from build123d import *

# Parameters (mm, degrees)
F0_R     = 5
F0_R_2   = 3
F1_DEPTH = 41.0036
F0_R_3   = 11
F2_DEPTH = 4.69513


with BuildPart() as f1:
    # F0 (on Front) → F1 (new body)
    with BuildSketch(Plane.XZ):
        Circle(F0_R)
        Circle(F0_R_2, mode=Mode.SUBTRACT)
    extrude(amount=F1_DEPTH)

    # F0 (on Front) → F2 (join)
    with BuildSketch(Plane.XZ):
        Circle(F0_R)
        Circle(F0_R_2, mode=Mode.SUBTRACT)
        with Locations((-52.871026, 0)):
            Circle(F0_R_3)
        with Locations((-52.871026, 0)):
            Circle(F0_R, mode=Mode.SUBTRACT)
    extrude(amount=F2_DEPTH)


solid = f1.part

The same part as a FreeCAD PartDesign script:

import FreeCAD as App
import Part
import Sketcher
from FreeCAD import Vector
Q = App.Units.Quantity

doc = App.newDocument("Part")
params = doc.addObject("Spreadsheet::Sheet", "Params")
for row, (alias, value) in enumerate([
    ("sketch1_diameter", "10 mm"),
    ("sketch1_diameter2", "6 mm"),
    ("pad1_length", "41.0036 mm"),
    ("sketch2_diameter", "10 mm"),
    ("sketch2_diameter2", "6 mm"),
    ("sketch2_diameter3", "22 mm"),
    ("pad2_length", "4.69513 mm"),
], start=1):
    params.set(f"A{row}", alias)
    params.set(f"B{row}", "=" + value)
    params.setAlias(f"B{row}", alias)

body = doc.addObject("PartDesign::Body", "Body")
body.AllowCompound = True

sketch1 = doc.addObject("Sketcher::SketchObject", "Sketch")
body.addObject(sketch1)
sketch1.AttachmentSupport = (doc.XZ_Plane, [""])
sketch1.MapMode = "FlatFace"
sketch1.addGeometry([
    Part.Circle(Vector(0, 0, 0), Vector(0, 0, 1), 5),
    Part.Circle(Vector(0, 0, 0), Vector(0, 0, 1), 3),
], False)
sketch1.addConstraint([
    Sketcher.Constraint("Coincident", 0, 3, -1, 1),
    Sketcher.Constraint("Coincident", 1, 3, -1, 1),
    Sketcher.Constraint("Diameter", 0, Q("10 mm")),
    Sketcher.Constraint("Diameter", 1, Q("6 mm")),
])
sketch1.setExpression("Constraints[2]", "Params.sketch1_diameter")
sketch1.setExpression("Constraints[3]", "Params.sketch1_diameter2")
pad1 = doc.addObject("PartDesign::Pad", "Pad")
body.addObject(pad1)
pad1.Profile = sketch1
pad1.setExpression("Length", "Params.pad1_length")

sketch2 = doc.addObject("Sketcher::SketchObject", "Sketch001")
body.addObject(sketch2)
sketch2.AttachmentSupport = (doc.XZ_Plane, [""])
sketch2.MapMode = "FlatFace"
sketch2.addGeometry([
    Part.Circle(Vector(0, 0, 0), Vector(0, 0, 1), 5),
    Part.Circle(Vector(0, 0, 0), Vector(0, 0, 1), 3),
    Part.Circle(Vector(-52.871026, 0, 0), Vector(0, 0, 1), 11),
    Part.Circle(Vector(-52.871026, 0, 0), Vector(0, 0, 1), 5),
], False)
sketch2.addConstraint([
    Sketcher.Constraint("Coincident", 0, 3, -1, 1),
    Sketcher.Constraint("Coincident", 1, 3, -1, 1),
    Sketcher.Constraint("Coincident", 3, 3, 2, 3),
    Sketcher.Constraint("Equal", 0, 3),
    Sketcher.Constraint("PointOnObject", 2, 3, -1),
    Sketcher.Constraint("Diameter", 0, Q("10 mm")),
    Sketcher.Constraint("Diameter", 1, Q("6 mm")),
    Sketcher.Constraint("Diameter", 2, Q("22 mm")),
    Sketcher.Constraint("DistanceX", 2, 3, -1, 1, Q("52.871026 mm")),
])
sketch2.setExpression("Constraints[5]", "Params.sketch2_diameter")
sketch2.setExpression("Constraints[6]", "Params.sketch2_diameter2")
sketch2.setExpression("Constraints[7]", "Params.sketch2_diameter3")
pad2 = doc.addObject("PartDesign::Pad", "Pad001")
body.addObject(pad2)
pad2.Profile = sketch2
pad2.setExpression("Length", "Params.pad2_length")

doc.recompute()
